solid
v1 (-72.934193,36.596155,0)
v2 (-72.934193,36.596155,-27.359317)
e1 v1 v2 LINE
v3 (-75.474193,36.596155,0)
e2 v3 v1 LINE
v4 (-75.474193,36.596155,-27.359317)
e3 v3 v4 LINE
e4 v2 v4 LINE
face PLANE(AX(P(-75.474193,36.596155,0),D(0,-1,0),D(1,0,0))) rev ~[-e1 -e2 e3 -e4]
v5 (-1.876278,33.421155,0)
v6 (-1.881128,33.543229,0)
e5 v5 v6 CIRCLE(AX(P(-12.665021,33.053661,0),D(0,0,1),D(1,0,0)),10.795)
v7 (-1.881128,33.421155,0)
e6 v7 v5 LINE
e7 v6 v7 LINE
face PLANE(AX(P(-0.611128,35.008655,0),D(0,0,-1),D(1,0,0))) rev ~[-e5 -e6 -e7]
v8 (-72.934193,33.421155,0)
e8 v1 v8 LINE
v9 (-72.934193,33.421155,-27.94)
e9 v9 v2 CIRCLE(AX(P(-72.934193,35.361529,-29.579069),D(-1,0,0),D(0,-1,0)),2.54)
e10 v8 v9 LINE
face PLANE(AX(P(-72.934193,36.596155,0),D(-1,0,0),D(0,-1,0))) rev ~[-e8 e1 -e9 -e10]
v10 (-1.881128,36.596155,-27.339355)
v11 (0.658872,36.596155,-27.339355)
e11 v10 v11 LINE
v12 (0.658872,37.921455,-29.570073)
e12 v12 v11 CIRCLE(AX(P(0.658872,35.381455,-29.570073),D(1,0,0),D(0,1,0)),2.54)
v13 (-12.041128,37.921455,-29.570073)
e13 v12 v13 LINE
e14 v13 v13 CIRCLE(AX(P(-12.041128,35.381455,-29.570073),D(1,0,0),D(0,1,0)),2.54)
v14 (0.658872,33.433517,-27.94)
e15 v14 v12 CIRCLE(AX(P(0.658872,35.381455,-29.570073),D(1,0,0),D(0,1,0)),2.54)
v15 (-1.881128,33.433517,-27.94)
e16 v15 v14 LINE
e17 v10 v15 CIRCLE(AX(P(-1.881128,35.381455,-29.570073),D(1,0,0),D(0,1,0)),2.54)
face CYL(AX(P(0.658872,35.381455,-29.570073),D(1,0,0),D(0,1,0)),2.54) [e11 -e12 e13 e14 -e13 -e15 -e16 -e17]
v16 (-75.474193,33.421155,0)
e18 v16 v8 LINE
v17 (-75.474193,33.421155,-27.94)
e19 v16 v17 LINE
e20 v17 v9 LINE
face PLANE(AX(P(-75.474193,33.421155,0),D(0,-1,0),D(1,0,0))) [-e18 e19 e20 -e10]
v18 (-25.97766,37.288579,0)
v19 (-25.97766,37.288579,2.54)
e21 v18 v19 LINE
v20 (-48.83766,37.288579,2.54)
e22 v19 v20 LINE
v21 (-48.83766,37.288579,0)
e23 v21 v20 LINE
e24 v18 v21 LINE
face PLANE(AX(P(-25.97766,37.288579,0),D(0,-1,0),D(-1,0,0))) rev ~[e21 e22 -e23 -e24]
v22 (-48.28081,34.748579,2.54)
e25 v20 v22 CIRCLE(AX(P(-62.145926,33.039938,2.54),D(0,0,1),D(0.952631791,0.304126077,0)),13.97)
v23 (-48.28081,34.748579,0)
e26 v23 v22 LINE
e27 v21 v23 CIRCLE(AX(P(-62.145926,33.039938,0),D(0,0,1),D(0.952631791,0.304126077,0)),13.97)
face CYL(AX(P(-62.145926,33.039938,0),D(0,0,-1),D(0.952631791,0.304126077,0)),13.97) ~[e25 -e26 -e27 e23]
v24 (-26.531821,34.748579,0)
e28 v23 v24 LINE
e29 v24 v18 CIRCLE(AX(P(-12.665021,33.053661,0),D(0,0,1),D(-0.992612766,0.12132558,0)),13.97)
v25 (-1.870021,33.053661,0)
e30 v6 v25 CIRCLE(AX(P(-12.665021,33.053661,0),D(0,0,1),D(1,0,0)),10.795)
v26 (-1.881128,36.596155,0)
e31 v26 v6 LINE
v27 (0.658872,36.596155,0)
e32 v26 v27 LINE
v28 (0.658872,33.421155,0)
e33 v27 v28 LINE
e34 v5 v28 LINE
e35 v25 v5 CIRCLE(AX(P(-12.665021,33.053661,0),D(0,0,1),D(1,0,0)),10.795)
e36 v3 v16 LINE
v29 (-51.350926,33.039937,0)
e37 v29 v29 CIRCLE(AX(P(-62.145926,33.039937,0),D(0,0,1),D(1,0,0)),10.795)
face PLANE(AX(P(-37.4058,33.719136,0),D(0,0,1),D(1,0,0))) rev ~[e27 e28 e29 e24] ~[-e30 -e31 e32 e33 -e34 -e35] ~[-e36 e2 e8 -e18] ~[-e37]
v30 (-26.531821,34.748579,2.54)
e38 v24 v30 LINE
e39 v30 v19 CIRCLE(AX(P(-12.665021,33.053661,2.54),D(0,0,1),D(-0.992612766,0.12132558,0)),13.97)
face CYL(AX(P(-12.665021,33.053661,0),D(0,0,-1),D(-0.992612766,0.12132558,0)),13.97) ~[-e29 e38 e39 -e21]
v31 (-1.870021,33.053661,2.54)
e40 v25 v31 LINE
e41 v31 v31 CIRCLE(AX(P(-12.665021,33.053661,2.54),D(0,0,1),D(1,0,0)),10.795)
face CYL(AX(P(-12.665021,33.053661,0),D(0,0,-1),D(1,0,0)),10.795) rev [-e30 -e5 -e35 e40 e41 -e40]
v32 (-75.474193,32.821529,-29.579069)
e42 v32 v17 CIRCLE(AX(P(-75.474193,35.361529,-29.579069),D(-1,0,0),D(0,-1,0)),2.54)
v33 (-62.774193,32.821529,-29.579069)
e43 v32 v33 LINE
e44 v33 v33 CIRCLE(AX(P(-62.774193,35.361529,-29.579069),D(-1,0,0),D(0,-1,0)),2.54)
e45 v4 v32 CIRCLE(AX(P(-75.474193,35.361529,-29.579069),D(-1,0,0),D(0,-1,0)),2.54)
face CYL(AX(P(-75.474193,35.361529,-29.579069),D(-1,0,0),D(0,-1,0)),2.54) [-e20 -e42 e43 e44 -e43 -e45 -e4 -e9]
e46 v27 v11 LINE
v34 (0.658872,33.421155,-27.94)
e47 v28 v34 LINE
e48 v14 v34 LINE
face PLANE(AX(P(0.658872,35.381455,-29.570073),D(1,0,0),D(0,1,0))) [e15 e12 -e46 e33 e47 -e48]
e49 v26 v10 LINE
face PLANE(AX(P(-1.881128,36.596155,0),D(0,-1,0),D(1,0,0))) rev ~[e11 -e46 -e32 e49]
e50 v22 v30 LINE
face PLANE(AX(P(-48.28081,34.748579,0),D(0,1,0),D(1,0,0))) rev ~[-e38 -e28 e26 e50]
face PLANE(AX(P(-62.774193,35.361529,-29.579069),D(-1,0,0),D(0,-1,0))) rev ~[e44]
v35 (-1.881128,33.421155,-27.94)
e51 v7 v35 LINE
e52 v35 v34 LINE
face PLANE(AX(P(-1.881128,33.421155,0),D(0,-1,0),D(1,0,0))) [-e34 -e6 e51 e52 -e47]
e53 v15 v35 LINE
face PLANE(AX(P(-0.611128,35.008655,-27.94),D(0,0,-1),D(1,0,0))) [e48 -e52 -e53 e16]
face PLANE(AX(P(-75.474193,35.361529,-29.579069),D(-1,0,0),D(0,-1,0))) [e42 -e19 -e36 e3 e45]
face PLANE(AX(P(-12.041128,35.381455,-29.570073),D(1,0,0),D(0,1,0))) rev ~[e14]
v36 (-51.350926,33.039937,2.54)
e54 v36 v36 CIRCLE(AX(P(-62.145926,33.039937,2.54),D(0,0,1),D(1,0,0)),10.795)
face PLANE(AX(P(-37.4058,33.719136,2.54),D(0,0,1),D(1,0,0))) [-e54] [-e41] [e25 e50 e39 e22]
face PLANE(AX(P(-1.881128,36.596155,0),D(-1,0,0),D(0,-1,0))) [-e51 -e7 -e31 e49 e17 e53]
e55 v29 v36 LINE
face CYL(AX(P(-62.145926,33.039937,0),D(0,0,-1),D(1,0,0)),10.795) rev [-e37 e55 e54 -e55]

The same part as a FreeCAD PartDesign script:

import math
import FreeCAD as App
import Part
import Sketcher

V = App.Vector
Q = App.Units.Quantity

doc = App.newDocument("Part")
body = doc.addObject("PartDesign::Body", "Body")

# Sketch on XY plane
sketch1 = body.newObject("Sketcher::SketchObject", "Sketch")
sketch1.AttachmentSupport = (doc.getObject("XY_Plane"), [""])
sketch1.MapMode = "FlatFace"
sketch1.addGeometry(Part.LineSegment(V(-26, 37.3, 0), V(-48.8, 37.3, 0)), False)
sketch1.addGeometry(Part.ArcOfCircle(Part.Circle(V(-62.1, 33, 0), V(0, 0, 1), 14), math.radians(18), math.radians(367)), False)
sketch1.addGeometry(Part.LineSegment(V(-48.3, 34.7, 0), V(-26.5, 34.7, 0)), False)
sketch1.addGeometry(Part.ArcOfCircle(Part.Circle(V(-12.7, 33.1, 0), V(0, 0, 1), 14), math.radians(173), math.radians(522)), False)
sketch1.addGeometry(Part.Circle(V(-62.1, 33, 0), V(0, 0, 1), 10.8), False)
sketch1.addGeometry(Part.Circle(V(-12.7, 33.1, 0), V(0, 0, 1), 10.8), False)
sketch1.addConstraint(Sketcher.Constraint("Coincident", 0, 2, 1, 1))
sketch1.addConstraint(Sketcher.Constraint("Coincident", 1, 2, 2, 1))
sketch1.addConstraint(Sketcher.Constraint("Coincident", 2, 2, 3, 1))
sketch1.addConstraint(Sketcher.Constraint("Coincident", 3, 2, 0, 1))
sketch1.addConstraint(Sketcher.Constraint("Horizontal", 0))
sketch1.addConstraint(Sketcher.Constraint("Horizontal", 2))
sketch1.addConstraint(Sketcher.Constraint("Coincident", 4, 3, 1, 3))
sketch1.addConstraint(Sketcher.Constraint("Coincident", 5, 3, 3, 3))
sketch1.addConstraint(Sketcher.Constraint("Equal", 1, 3))
sketch1.addConstraint(Sketcher.Constraint("Equal", 4, 5))
sketch1.addConstraint(Sketcher.Constraint("Diameter", 4, Q("0.85 in")))
sketch1.addConstraint(Sketcher.Constraint("Radius", 1, Q("0.55 in")))
sketch1.addConstraint(Sketcher.Constraint("DistanceX", 0, 2, 0, 1, Q("0.9 in")))
sketch1.addConstraint(Sketcher.Constraint("DistanceY", 1, 2, 0, 2, Q("0.1 in")))
sketch1.addConstraint(Sketcher.Constraint("DistanceX", 2, 1, 2, 2, 21.748989))
sketch1.addConstraint(Sketcher.Constraint("DistanceX", 2, 2, 3, 3, 13.8668))
sketch1.addConstraint(Sketcher.Constraint("DistanceX", 3, 3, -1, 1, 12.665021))
sketch1.addConstraint(Sketcher.Constraint("DistanceY", -1, 1, 3, 3, 33.053661))
pad1 = body.newObject("PartDesign::Pad", "Pad")
pad1.Profile = sketch1
pad1.Length = Q("0.1 in")

# Sketch on XY plane
sketch2 = body.newObject("Sketcher::SketchObject", "Sketch001")
sketch2.AttachmentSupport = (doc.getObject("XY_Plane"), [""])
sketch2.MapMode = "FlatFace"
sketch2.addGeometry(Part.LineSegment(V(-75.5, 33.4, 0), V(-75.5, 36.6, 0)), False)
sketch2.addGeometry(Part.LineSegment(V(-75.5, 36.6, 0), V(-72.9, 36.6, 0)), False)
sketch2.addGeometry(Part.LineSegment(V(-72.9, 36.6, 0), V(-72.9, 33.4, 0)), False)
sketch2.addGeometry(Part.LineSegment(V(-72.9, 33.4, 0), V(-75.5, 33.4, 0)), False)
sketch2.addGeometry(Part.LineSegment(V(-1.9, 33.4, 0), V(-1.9, 36.6, 0)), False)
sketch2.addGeometry(Part.LineSegment(V(-1.9, 36.6, 0), V(0.7, 36.6, 0)), False)
sketch2.addGeometry(Part.LineSegment(V(0.7, 36.6, 0), V(0.7, 33.4, 0)), False)
sketch2.addGeometry(Part.LineSegment(V(0.7, 33.4, 0), V(-1.9, 33.4, 0)), False)
sketch2.addConstraint(Sketcher.Constraint("Coincident", 0, 2, 1, 1))
sketch2.addConstraint(Sketcher.Constraint("Coincident", 1, 2, 2, 1))
sketch2.addConstraint(Sketcher.Constraint("Coincident", 2, 2, 3, 1))
sketch2.addConstraint(Sketcher.Constraint("Coincident", 3, 2, 0, 1))
sketch2.addConstraint(Sketcher.Constraint("Coincident", 4, 2, 5, 1))
sketch2.addConstraint(Sketcher.Constraint("Coincident", 5, 2, 6, 1))
sketch2.addConstraint(Sketcher.Constraint("Coincident", 6, 2, 7, 1))
sketch2.addConstraint(Sketcher.Constraint("Coincident", 7, 2, 4, 1))
sketch2.addConstraint(Sketcher.Constraint("Vertical", 0))
sketch2.addConstraint(Sketcher.Constraint("Horizontal", 1))
sketch2.addConstraint(Sketcher.Constraint("Vertical", 2))
sketch2.addConstraint(Sketcher.Constraint("Horizontal", 3))
sketch2.addConstraint(Sketcher.Constraint("Vertical", 4))
sketch2.addConstraint(Sketcher.Constraint("Horizontal", 5))
sketch2.addConstraint(Sketcher.Constraint("Vertical", 6))
sketch2.addConstraint(Sketcher.Constraint("Horizontal", 7))
sketch2.addConstraint(Sketcher.Constraint("Horizontal", 1, 2, 4, 2))
sketch2.addConstraint(Sketcher.Constraint("Horizontal", 3, 2, 6, 2))
sketch2.addConstraint(Sketcher.Constraint("Equal", 3, 5))
sketch2.addConstraint(Sketcher.Constraint("DistanceX", 1, 1, 1, 2, Q("0.1 in")))
sketch2.addConstraint(Sketcher.Constraint("DistanceY", 0, 1, 0, 2, Q("0.125 in")))
sketch2.addConstraint(Sketcher.Constraint("DistanceX", 0, 2, -1, 1, 75.474193))
sketch2.addConstraint(Sketcher.Constraint("DistanceY", -1, 1, 0, 2, 36.596155))
sketch2.addConstraint(Sketcher.Constraint("DistanceX", 4, 2, -1, 1, 1.881128))
pad2 = body.newObject("PartDesign::Pad", "Pad001")
pad2.Profile = sketch2
pad2.Length = Q("1.1 in")
pad2.Reversed = True

# Sketch on YZ plane
sketch3 = body.newObject("Sketcher::SketchObject", "Sketch002")
sketch3.AttachmentSupport = (doc.getObject("YZ_Plane"), [""])
sketch3.MapMode = "FlatFace"
sketch3.AttachmentOffset = App.Placement(V(0, 0, -75.474193), App.Rotation())
sketch3.addGeometry(Part.Circle(V(35.4, -29.6, 0), V(0, 0, 1), 2.5), False)
sketch3.addConstraint(Sketcher.Constraint("Diameter", 0, Q("0.2 in")))
sketch3.addConstraint(Sketcher.Constraint("DistanceX", -1, 1, 0, 3, 35.361529))
sketch3.addConstraint(Sketcher.Constraint("DistanceY", 0, 3, -1, 1, 29.579069))
pad3 = body.newObject("PartDesign::Pad", "Pad002")
pad3.Profile = sketch3
pad3.Length = Q("0.5 in")

# Sketch on YZ plane
sketch4 = body.newObject("Sketcher::SketchObject", "Sketch003")
sketch4.AttachmentSupport = (doc.getObject("YZ_Plane"), [""])
sketch4.MapMode = "FlatFace"
sketch4.AttachmentOffset = App.Placement(V(0, 0, 0.658872), App.Rotation())
sketch4.addGeometry(Part.Circle(V(35.4, -29.6, 0), V(0, 0, 1), 2.5), False)
sketch4.addConstraint(Sketcher.Constraint("Diameter", 0, Q("0.2 in")))
sketch4.addConstraint(Sketcher.Constraint("DistanceX", -1, 1, 0, 3, 35.381455))
sketch4.addConstraint(Sketcher.Constraint("DistanceY", 0, 3, -1, 1, 29.570073))
pad4 = body.newObject("PartDesign::Pad", "Pad003")
pad4.Profile = sketch4
pad4.Length = Q("0.5 in")
pad4.Reversed = True

doc.recompute()
